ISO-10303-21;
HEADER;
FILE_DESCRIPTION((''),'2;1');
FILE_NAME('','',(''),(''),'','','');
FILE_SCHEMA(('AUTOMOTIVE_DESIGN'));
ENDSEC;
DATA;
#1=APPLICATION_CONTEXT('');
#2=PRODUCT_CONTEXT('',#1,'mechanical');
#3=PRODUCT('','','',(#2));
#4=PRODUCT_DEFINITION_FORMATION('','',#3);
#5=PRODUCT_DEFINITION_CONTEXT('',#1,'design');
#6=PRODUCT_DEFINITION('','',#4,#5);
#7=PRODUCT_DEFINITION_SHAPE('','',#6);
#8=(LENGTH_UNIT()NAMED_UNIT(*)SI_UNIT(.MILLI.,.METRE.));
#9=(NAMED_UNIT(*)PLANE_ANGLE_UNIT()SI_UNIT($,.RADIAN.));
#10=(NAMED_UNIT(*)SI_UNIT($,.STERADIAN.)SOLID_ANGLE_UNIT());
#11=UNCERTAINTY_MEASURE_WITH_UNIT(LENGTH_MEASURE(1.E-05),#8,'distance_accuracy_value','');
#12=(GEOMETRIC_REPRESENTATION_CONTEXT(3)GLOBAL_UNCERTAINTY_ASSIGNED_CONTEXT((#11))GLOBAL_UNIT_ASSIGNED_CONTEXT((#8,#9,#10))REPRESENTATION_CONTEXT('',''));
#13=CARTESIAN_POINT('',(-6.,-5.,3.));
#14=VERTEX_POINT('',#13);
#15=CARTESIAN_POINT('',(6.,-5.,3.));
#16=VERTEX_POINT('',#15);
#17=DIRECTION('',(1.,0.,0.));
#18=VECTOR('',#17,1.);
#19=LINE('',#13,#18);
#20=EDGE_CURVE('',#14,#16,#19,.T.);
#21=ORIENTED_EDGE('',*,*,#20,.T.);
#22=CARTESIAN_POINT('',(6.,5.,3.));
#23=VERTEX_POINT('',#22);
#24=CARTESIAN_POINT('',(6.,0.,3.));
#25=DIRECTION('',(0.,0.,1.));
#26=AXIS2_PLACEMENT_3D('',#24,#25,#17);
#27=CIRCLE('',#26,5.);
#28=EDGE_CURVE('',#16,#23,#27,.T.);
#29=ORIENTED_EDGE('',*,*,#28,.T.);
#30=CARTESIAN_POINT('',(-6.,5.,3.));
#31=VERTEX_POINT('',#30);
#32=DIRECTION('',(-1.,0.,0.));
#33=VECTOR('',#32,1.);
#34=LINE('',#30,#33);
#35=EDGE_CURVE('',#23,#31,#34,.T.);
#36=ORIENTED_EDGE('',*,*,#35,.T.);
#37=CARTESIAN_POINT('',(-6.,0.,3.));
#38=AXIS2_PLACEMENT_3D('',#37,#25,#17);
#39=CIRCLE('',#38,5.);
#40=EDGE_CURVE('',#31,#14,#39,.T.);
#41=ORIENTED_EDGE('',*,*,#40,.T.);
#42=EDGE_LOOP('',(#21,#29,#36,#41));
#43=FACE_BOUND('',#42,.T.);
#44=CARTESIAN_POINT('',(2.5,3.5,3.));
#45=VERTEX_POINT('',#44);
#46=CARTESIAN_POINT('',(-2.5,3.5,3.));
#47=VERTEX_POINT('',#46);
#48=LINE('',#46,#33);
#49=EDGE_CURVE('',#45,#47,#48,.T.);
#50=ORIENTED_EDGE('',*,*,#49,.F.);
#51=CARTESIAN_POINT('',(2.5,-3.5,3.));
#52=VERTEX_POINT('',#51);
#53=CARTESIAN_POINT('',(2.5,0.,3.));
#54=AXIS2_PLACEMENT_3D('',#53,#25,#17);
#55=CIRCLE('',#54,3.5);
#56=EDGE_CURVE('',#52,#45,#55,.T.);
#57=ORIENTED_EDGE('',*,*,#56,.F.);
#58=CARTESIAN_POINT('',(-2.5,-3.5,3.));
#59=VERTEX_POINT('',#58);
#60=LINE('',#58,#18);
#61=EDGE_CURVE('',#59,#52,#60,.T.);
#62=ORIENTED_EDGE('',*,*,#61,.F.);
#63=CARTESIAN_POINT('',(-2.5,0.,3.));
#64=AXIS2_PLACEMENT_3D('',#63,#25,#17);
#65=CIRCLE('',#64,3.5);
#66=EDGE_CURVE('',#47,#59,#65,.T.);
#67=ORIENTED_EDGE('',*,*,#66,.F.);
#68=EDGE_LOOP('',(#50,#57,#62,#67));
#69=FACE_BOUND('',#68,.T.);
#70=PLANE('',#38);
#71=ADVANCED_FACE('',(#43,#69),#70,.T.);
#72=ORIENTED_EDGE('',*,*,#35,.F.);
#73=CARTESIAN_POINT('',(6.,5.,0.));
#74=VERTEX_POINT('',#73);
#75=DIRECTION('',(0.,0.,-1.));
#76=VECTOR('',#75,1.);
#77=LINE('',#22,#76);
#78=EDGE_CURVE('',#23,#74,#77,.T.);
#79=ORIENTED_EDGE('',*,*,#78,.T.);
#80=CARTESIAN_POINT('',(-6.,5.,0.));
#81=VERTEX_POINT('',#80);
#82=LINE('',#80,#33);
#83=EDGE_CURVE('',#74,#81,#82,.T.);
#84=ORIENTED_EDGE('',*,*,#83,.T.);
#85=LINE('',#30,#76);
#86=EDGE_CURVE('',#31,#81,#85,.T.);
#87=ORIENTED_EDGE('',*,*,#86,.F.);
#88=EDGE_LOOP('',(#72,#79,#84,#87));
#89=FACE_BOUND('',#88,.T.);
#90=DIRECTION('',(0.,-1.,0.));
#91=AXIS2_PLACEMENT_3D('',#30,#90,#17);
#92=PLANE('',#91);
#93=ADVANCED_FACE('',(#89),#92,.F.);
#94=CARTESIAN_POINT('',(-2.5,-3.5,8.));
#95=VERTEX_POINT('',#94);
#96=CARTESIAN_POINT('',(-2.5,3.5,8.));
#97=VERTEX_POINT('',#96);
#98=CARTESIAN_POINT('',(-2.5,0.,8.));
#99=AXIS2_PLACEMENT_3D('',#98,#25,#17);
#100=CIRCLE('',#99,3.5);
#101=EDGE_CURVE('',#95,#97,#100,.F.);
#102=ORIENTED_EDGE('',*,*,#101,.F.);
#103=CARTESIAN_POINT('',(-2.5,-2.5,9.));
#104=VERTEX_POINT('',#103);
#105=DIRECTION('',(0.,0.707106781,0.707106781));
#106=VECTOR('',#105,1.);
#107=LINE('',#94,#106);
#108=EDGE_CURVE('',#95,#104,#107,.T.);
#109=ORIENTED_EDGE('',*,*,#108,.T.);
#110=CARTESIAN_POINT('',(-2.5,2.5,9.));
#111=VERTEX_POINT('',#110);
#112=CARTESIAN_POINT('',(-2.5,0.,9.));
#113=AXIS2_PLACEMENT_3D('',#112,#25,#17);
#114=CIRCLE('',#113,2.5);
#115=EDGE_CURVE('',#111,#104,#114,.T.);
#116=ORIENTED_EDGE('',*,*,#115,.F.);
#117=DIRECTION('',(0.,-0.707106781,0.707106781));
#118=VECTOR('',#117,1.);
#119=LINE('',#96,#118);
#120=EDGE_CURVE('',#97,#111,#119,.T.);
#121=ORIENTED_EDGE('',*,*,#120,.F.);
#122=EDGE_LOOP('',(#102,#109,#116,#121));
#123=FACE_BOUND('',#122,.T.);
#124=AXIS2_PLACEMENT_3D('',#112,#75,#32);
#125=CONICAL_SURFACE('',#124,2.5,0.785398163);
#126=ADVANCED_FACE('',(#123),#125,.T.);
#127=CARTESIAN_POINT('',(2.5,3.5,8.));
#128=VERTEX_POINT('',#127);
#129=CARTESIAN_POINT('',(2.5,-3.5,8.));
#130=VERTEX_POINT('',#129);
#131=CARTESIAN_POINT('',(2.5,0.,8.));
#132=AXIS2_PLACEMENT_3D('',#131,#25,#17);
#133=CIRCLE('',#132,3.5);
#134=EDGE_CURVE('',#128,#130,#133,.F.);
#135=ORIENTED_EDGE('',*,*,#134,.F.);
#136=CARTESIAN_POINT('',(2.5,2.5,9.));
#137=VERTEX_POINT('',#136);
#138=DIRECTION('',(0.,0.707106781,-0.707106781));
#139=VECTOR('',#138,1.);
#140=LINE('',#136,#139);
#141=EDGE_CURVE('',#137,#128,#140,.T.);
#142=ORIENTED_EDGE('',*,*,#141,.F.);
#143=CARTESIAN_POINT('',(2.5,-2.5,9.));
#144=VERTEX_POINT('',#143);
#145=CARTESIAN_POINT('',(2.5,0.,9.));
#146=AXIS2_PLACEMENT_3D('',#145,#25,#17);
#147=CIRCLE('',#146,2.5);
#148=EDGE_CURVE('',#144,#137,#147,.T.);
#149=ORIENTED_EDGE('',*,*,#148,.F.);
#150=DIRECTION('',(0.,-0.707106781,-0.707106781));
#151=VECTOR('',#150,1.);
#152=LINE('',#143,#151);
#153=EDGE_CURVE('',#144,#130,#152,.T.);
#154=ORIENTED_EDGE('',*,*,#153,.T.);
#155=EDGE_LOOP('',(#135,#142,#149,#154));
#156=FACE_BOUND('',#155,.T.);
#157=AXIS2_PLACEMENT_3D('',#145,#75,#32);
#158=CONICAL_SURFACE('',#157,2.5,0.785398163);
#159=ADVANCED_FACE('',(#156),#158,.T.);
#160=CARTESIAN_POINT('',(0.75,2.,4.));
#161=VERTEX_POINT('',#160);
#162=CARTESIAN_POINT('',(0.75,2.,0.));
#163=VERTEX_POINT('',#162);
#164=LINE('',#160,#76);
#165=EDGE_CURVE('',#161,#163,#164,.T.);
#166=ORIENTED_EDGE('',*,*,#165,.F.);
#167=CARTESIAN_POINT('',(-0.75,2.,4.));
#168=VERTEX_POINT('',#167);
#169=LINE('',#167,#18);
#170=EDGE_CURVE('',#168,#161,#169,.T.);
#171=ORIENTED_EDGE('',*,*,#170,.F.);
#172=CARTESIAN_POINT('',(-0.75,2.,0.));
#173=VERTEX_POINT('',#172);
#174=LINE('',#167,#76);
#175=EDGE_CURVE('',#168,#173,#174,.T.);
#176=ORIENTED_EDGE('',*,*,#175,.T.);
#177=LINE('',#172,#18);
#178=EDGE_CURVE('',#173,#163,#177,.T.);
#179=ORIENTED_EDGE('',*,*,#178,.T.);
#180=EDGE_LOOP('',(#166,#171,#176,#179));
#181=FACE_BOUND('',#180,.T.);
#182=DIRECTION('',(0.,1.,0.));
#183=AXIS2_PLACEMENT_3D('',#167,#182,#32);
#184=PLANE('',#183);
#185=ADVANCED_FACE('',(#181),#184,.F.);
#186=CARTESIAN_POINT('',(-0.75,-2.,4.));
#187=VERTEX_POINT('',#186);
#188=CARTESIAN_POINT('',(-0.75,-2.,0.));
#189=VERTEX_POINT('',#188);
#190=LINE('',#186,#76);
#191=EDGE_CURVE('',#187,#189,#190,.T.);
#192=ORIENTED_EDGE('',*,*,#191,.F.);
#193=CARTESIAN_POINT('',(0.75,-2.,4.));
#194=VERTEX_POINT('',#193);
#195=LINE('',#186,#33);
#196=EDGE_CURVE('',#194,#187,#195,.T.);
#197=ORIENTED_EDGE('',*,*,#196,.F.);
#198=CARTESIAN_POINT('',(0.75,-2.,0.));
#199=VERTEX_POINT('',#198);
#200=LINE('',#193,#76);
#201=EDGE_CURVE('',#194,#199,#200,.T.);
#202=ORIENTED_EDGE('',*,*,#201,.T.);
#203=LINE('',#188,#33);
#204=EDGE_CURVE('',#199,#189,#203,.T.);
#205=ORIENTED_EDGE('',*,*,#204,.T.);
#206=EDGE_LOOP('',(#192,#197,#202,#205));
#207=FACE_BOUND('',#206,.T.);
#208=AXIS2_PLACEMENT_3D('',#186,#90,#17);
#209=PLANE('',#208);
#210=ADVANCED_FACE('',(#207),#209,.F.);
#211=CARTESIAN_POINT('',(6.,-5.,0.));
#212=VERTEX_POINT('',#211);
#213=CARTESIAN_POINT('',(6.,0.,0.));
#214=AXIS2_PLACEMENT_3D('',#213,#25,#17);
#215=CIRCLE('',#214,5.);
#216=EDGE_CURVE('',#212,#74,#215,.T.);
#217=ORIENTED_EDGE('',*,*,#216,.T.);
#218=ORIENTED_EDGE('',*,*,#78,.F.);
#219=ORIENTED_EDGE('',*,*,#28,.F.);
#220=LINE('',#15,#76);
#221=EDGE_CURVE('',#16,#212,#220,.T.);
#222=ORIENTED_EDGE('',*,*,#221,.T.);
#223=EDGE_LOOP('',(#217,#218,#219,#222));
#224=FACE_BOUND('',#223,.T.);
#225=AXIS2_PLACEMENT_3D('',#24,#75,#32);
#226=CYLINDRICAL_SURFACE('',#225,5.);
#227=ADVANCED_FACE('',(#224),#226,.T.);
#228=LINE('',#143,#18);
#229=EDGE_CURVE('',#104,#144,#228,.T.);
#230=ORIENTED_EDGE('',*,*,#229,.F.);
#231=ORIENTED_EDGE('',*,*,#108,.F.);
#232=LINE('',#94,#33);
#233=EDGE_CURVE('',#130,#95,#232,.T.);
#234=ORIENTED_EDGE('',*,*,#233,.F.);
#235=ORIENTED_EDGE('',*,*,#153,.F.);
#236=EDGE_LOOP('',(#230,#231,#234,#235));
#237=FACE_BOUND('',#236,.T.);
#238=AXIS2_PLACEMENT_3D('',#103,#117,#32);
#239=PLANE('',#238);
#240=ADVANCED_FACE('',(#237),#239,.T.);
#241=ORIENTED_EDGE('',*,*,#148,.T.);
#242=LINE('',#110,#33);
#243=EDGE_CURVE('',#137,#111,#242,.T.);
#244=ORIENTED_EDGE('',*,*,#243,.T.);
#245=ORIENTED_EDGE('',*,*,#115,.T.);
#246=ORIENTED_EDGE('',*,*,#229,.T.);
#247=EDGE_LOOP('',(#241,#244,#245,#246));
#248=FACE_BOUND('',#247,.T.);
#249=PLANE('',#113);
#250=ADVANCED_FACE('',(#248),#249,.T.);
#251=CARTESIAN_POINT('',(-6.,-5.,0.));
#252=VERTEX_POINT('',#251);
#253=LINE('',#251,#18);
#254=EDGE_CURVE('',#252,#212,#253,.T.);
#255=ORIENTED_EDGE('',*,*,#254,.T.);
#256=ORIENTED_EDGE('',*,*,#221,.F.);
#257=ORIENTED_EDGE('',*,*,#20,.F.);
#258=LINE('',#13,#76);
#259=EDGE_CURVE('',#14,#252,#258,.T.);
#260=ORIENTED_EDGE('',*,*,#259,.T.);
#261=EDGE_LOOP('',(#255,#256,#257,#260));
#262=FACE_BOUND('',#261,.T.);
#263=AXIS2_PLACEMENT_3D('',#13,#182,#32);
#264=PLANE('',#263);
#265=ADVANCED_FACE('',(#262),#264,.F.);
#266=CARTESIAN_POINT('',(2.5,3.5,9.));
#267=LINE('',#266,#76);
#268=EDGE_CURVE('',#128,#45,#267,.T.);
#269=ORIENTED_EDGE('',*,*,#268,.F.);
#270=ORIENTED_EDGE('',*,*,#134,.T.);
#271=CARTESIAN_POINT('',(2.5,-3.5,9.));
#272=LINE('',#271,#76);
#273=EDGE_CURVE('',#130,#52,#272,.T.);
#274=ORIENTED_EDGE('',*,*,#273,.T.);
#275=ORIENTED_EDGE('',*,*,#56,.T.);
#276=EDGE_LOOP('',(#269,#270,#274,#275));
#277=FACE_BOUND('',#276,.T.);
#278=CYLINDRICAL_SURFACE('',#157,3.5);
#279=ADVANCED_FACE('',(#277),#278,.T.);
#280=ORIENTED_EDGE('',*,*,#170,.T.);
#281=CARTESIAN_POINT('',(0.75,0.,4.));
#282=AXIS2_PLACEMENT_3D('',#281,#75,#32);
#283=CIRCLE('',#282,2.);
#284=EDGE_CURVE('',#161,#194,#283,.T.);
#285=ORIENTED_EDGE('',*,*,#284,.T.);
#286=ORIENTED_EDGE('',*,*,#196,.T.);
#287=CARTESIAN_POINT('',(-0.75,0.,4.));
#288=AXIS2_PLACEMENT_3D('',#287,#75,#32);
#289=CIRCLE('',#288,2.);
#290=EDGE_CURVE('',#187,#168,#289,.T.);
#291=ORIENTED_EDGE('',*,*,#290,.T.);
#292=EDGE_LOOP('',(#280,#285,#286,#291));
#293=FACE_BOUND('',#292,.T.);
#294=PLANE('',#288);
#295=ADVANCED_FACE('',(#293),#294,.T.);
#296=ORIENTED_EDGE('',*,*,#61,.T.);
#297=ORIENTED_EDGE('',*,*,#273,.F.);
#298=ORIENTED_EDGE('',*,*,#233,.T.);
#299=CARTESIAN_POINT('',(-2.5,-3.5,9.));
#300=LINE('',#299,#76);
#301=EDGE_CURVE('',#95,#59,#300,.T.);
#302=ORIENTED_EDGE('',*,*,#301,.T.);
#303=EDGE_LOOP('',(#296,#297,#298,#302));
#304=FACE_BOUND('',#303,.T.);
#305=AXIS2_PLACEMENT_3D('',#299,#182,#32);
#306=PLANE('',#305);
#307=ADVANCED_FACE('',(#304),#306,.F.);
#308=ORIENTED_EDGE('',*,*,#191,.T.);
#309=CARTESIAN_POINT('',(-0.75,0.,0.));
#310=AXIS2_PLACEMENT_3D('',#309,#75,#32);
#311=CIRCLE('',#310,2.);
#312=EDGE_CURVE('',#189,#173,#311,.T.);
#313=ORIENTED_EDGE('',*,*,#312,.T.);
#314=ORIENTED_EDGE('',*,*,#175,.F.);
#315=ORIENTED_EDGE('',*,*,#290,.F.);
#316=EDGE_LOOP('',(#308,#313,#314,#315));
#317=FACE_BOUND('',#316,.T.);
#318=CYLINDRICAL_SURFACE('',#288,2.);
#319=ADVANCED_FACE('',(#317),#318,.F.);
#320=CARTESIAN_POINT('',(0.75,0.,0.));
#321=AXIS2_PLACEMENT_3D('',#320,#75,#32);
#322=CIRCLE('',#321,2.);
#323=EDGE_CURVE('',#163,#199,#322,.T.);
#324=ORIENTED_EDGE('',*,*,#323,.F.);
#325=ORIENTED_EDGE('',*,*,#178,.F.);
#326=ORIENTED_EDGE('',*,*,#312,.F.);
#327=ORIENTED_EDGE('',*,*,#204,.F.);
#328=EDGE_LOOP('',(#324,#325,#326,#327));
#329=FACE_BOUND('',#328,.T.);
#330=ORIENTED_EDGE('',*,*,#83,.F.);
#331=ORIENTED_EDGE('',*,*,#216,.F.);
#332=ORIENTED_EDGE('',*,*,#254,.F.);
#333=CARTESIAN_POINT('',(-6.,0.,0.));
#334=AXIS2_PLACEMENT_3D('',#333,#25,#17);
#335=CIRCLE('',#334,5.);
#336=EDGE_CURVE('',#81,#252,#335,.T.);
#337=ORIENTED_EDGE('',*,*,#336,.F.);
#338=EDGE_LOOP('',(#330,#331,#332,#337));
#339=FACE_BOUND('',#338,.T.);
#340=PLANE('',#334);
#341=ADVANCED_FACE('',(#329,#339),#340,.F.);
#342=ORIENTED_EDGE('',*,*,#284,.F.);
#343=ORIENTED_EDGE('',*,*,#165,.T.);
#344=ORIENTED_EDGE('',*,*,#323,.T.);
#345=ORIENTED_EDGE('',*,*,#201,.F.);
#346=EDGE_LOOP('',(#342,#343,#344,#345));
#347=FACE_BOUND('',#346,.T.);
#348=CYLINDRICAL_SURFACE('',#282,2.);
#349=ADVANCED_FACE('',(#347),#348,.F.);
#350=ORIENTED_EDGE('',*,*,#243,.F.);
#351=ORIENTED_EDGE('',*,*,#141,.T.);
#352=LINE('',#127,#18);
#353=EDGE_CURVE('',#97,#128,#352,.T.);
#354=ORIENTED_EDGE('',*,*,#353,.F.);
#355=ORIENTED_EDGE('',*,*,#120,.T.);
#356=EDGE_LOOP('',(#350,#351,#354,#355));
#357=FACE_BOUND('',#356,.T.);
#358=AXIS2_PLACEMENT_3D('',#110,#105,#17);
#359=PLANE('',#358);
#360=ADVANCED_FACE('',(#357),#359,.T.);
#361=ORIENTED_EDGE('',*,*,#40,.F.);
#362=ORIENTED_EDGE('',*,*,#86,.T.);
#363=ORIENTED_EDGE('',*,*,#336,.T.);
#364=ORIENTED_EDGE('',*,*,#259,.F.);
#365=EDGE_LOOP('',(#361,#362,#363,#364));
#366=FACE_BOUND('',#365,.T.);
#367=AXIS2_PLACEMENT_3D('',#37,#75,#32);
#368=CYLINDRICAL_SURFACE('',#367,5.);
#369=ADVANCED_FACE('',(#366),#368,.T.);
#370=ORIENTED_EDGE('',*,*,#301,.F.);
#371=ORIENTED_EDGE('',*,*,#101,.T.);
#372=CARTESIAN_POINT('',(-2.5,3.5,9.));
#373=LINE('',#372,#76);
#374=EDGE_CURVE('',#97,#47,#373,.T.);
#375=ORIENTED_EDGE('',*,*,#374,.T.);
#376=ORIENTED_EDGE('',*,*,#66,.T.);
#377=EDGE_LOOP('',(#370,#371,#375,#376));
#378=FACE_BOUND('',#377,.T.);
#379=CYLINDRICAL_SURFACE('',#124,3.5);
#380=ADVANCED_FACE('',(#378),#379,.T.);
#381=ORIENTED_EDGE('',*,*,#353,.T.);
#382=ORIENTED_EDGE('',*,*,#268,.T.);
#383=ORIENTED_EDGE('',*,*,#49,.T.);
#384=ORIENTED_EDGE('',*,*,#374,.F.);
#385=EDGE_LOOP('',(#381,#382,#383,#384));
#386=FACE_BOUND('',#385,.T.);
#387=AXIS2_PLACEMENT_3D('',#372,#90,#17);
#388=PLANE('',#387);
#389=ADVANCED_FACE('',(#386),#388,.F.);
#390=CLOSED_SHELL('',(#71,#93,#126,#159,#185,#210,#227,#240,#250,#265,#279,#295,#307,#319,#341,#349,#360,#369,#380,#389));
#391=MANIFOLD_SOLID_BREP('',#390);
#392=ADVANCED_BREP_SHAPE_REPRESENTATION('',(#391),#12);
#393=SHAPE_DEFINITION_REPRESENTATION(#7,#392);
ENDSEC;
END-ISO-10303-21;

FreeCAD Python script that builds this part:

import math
import FreeCAD as App
import Part
import Sketcher

V = App.Vector
Q = App.Units.Quantity


def edges_at(feature, points):
    """Names of the edges that pass closest to the given points."""
    edges = feature.Shape.Edges
    near = lambda p: min(range(len(edges)), key=lambda i: edges[i].distToShape(Part.Vertex(*p))[0])
    return sorted({f"Edge{near(p) + 1}" for p in points})

doc = App.newDocument("Part")
body = doc.addObject("PartDesign::Body", "Body")

sketch1 = body.newObject("Sketcher::SketchObject", "Sketch")
sketch1.AttachmentSupport = (doc.getObject("XY_Plane"), [""])
sketch1.MapMode = "FlatFace"
sketch1.addGeometry(Part.LineSegment(V(6, 5, 0), V(-6, 5, 0)), False)
sketch1.addGeometry(Part.ArcOfCircle(Part.Circle(V(-6, 0, 0), V(0, 0, 1), 5), math.radians(90), math.radians(270)), False)
sketch1.addGeometry(Part.LineSegment(V(-6, -5, 0), V(6, -5, 0)), False)
sketch1.addGeometry(Part.ArcOfCircle(Part.Circle(V(6, 0, 0), V(0, 0, 1), 5), math.radians(-90), math.radians(90)), False)
sketch1.addConstraint(Sketcher.Constraint("Tangent", 0, 2, 1, 1))
sketch1.addConstraint(Sketcher.Constraint("Tangent", 1, 2, 2, 1))
sketch1.addConstraint(Sketcher.Constraint("Tangent", 2, 2, 3, 1))
sketch1.addConstraint(Sketcher.Constraint("Tangent", 3, 2, 0, 1))
sketch1.addConstraint(Sketcher.Constraint("Horizontal", 0))
sketch1.addConstraint(Sketcher.Constraint("Horizontal", 2))
sketch1.addConstraint(Sketcher.Constraint("Symmetric", 1, 3, 3, 3, -1, 1))
sketch1.addConstraint(Sketcher.Constraint("Radius", 1, Q("5 mm")))
sketch1.addConstraint(Sketcher.Constraint("DistanceX", 0, 2, 0, 1, Q("12 mm")))
pad1 = body.newObject("PartDesign::Pad", "Pad")
pad1.Profile = sketch1
pad1.Length = 3

sketch2 = body.newObject("Sketcher::SketchObject", "Sketch001")
sketch2.AttachmentSupport = (doc.getObject("XY_Plane"), [""])
sketch2.MapMode = "FlatFace"
sketch2.AttachmentOffset = App.Placement(V(0, 0, 3), App.Rotation())
sketch2.addGeometry(Part.LineSegment(V(2.5, 3.5, 0), V(-2.5, 3.5, 0)), False)
sketch2.addGeometry(Part.ArcOfCircle(Part.Circle(V(-2.5, 0, 0), V(0, 0, 1), 3.5), math.radians(90), math.radians(270)), False)
sketch2.addGeometry(Part.LineSegment(V(-2.5, -3.5, 0), V(2.5, -3.5, 0)), False)
sketch2.addGeometry(Part.ArcOfCircle(Part.Circle(V(2.5, 0, 0), V(0, 0, 1), 3.5), math.radians(-90), math.radians(90)), False)
sketch2.addConstraint(Sketcher.Constraint("Tangent", 0, 2, 1, 1))
sketch2.addConstraint(Sketcher.Constraint("Tangent", 1, 2, 2, 1))
sketch2.addConstraint(Sketcher.Constraint("Tangent", 2, 2, 3, 1))
sketch2.addConstraint(Sketcher.Constraint("Tangent", 3, 2, 0, 1))
sketch2.addConstraint(Sketcher.Constraint("Horizontal", 0))
sketch2.addConstraint(Sketcher.Constraint("Horizontal", 2))
sketch2.addConstraint(Sketcher.Constraint("Symmetric", 1, 3, 3, 3, -1, 1))
sketch2.addConstraint(Sketcher.Constraint("Radius", 1, Q("3.5 mm")))
sketch2.addConstraint(Sketcher.Constraint("DistanceX", 0, 2, 0, 1, Q("5 mm")))
pad2 = body.newObject("PartDesign::Pad", "Pad001")
pad2.Profile = sketch2
pad2.Length = 6

sketch3 = body.newObject("Sketcher::SketchObject", "Sketch002")
sketch3.AttachmentSupport = (doc.getObject("XY_Plane"), [""])
sketch3.MapMode = "FlatFace"
sketch3.addGeometry(Part.LineSegment(V(0.75, -2, 0), V(-0.75, -2, 0)), False)
sketch3.addGeometry(Part.ArcOfCircle(Part.Circle(V(-0.75, 0, 0), V(0, 0, 1), 2), math.radians(90), math.radians(270)), False)
sketch3.addGeometry(Part.LineSegment(V(-0.75, 2, 0), V(0.75, 2, 0)), False)
sketch3.addGeometry(Part.ArcOfCircle(Part.Circle(V(0.75, 0, 0), V(0, 0, 1), 2), math.radians(-90), math.radians(90)), False)
sketch3.addConstraint(Sketcher.Constraint("Tangent", 0, 2, 1, 2))
sketch3.addConstraint(Sketcher.Constraint("Tangent", 1, 1, 2, 1))
sketch3.addConstraint(Sketcher.Constraint("Tangent", 2, 2, 3, 2))
sketch3.addConstraint(Sketcher.Constraint("Tangent", 3, 1, 0, 1))
sketch3.addConstraint(Sketcher.Constraint("Horizontal", 0))
sketch3.addConstraint(Sketcher.Constraint("Horizontal", 2))
sketch3.addConstraint(Sketcher.Constraint("Symmetric", 1, 3, 3, 3, -1, 1))
sketch3.addConstraint(Sketcher.Constraint("Radius", 1, Q("2 mm")))
sketch3.addConstraint(Sketcher.Constraint("DistanceX", 0, 2, 0, 1, Q("1.5 mm")))
pocket1 = body.newObject("PartDesign::Pocket", "Pocket")
pocket1.Profile = sketch3
pocket1.Length = 4
pocket1.Reversed = True
doc.recompute()

chamfer = body.newObject("PartDesign::Chamfer", "Chamfer")
chamfer.Base = (pocket1, edges_at(pocket1, [
    (-6, 0, 9),
    (0, -3.5, 9),
    (6, 0, 9),
    (0, 3.5, 9),
]))
chamfer.Size = 1

doc.recompute()
